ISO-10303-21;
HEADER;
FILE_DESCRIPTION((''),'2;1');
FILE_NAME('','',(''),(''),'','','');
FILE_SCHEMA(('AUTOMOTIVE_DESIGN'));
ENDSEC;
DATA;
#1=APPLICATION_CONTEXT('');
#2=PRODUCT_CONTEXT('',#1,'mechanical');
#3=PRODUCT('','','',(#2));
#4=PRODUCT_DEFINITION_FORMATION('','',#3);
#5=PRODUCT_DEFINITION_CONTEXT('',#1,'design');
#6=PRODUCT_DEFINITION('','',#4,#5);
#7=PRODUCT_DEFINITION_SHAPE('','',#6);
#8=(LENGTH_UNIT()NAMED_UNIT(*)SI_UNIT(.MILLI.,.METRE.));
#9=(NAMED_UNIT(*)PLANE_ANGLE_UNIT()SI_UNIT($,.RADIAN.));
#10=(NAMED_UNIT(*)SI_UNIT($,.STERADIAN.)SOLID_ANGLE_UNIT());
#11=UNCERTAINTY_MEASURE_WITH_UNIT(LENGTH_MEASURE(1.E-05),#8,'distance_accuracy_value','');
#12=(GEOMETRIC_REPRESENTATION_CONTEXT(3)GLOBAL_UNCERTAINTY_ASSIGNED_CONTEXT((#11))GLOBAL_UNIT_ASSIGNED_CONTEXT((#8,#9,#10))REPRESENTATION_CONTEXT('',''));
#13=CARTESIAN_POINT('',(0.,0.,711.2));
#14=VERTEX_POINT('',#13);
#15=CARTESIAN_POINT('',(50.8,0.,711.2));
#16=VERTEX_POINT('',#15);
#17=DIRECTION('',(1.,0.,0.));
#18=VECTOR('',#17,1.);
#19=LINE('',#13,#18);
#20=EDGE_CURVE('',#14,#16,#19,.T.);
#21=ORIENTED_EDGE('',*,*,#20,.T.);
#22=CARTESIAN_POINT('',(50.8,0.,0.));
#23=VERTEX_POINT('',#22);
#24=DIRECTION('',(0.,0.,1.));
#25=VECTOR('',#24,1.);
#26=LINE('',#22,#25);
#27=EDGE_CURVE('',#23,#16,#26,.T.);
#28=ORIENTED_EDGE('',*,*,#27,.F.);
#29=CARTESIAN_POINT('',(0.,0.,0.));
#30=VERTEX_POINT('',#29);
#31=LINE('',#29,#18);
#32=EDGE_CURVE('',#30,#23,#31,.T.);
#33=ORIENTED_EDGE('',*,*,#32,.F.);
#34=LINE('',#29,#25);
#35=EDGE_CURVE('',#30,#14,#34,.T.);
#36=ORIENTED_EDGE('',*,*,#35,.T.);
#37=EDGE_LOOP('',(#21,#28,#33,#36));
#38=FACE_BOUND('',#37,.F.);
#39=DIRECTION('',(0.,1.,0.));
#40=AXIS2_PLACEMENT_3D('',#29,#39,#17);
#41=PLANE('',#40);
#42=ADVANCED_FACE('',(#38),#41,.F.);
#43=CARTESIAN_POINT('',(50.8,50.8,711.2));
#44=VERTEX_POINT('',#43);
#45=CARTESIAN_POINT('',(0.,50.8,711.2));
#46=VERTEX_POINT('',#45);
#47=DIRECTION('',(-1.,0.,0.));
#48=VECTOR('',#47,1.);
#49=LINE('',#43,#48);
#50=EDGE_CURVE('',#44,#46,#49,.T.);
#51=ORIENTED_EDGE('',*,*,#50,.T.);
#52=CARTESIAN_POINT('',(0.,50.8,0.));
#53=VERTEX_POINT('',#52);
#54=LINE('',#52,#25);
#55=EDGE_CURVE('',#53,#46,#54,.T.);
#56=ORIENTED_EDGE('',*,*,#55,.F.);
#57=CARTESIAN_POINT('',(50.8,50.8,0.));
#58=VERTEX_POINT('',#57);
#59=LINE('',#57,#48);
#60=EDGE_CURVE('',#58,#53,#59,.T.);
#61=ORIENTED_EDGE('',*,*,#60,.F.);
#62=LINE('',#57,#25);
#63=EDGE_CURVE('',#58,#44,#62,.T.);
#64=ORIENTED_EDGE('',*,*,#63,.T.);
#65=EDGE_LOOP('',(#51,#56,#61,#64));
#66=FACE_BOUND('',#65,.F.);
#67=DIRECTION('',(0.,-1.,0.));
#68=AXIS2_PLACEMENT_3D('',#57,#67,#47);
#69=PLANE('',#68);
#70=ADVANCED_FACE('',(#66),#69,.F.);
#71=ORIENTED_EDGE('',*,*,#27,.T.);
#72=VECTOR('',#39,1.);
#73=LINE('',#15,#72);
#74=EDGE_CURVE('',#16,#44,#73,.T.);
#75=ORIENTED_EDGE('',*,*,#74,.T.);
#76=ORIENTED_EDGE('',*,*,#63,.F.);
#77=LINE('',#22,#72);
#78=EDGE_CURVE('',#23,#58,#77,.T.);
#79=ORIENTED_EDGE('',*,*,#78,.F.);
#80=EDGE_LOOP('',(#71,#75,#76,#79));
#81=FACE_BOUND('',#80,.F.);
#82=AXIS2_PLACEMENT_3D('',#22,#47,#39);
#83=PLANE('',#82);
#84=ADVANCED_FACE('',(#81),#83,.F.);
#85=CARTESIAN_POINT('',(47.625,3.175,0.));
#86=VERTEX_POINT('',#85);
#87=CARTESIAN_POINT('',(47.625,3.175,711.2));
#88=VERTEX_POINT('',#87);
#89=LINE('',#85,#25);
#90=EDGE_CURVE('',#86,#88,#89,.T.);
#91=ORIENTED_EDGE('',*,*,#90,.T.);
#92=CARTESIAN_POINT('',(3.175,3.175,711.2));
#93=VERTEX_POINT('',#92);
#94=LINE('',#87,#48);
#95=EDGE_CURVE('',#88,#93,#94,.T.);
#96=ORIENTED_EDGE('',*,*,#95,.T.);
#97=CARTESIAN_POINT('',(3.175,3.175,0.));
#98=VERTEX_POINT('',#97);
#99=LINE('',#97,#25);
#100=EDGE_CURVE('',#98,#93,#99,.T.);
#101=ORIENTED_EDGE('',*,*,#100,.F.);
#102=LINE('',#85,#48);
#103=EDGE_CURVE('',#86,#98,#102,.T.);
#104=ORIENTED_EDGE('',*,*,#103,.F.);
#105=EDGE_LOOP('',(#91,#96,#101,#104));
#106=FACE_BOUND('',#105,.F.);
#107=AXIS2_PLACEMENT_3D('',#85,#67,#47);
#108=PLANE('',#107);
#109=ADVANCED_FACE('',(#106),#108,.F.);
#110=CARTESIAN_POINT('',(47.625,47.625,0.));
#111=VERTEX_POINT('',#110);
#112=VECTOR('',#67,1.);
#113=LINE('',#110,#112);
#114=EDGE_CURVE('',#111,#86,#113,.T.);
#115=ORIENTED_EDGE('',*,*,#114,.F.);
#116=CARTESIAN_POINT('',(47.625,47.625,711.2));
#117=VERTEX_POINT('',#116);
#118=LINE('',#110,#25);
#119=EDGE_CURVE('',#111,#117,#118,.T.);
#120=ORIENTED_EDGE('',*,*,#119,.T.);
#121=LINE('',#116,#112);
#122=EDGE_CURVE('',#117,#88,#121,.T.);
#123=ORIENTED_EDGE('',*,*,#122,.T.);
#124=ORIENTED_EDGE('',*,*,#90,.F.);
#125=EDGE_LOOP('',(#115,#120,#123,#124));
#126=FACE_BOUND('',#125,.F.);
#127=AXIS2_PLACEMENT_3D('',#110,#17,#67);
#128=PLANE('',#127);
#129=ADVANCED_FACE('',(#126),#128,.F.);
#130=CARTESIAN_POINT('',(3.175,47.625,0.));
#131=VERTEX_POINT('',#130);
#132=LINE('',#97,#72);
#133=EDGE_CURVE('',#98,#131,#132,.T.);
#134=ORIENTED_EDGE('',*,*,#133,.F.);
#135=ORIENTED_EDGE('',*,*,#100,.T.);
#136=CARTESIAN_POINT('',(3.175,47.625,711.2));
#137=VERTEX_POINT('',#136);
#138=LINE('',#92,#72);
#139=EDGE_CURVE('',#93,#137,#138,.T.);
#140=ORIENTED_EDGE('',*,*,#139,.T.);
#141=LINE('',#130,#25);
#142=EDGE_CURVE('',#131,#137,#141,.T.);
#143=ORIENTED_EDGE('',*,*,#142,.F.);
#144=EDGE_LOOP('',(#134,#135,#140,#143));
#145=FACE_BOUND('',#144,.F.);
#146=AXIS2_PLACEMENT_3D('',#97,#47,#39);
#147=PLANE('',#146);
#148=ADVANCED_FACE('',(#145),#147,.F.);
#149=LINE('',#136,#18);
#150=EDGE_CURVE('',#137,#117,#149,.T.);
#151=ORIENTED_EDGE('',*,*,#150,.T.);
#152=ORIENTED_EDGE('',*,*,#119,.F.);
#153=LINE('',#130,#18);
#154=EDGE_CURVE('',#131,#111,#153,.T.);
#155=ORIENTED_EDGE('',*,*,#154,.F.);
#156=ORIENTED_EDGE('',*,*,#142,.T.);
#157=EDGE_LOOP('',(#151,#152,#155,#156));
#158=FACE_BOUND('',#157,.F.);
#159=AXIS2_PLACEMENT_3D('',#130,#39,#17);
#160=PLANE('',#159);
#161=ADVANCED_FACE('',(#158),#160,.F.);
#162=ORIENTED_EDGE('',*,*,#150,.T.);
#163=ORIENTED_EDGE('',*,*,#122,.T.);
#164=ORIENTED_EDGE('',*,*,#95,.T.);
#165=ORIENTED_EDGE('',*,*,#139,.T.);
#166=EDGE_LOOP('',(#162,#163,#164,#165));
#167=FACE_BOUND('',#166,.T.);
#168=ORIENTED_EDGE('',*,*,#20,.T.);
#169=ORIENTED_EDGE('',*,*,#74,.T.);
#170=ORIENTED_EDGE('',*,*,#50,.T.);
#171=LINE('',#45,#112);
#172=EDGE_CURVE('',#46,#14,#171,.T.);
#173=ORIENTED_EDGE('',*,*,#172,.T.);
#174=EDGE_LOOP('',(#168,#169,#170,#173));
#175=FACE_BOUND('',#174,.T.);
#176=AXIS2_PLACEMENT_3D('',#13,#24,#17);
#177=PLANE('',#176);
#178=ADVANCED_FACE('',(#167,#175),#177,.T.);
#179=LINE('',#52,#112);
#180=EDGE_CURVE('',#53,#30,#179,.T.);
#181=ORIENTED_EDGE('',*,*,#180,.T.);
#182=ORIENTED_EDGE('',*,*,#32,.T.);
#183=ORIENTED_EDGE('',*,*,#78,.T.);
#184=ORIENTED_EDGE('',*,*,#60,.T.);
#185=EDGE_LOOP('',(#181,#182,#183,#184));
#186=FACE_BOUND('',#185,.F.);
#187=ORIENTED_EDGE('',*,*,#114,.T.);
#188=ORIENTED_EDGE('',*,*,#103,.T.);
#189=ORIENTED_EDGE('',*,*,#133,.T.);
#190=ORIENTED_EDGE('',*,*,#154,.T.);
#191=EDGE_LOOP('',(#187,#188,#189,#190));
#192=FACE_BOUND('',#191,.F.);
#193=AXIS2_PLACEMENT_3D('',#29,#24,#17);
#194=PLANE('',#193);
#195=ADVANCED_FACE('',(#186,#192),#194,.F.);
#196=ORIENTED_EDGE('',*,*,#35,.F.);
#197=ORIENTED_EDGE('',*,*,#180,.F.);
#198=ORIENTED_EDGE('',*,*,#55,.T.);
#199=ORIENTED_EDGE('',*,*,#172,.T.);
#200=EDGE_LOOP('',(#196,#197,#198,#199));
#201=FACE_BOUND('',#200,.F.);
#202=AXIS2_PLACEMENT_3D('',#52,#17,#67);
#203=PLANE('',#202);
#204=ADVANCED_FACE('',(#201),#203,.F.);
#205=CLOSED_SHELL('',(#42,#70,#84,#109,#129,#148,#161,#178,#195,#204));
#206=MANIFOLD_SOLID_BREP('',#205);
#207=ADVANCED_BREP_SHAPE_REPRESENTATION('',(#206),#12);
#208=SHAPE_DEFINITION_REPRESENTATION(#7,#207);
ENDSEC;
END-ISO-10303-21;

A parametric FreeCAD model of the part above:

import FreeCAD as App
import Part
import Sketcher
Q = App.Units.Quantity

doc = App.newDocument("Part")
params = doc.addObject("Spreadsheet::Sheet", "Params")
for row, (alias, value) in enumerate([
    ("sketch1_width", "2 in"),
    ("pad1_length", "28 in"),
], start=1):
    params.set(f"A{row}", alias)
    params.set(f"B{row}", "=" + value)
    params.setAlias(f"B{row}", alias)

body = doc.addObject("PartDesign::Body", "Body")

sketch1 = doc.addObject("Sketcher::SketchObject", "Sketch")
body.addObject(sketch1)
sketch1.AttachmentSupport = (doc.XY_Plane, [""])
sketch1.MapMode = "FlatFace"
sketch1.addGeometry([
    Part.LineSegment(App.Vector(0, 50.8, 0), App.Vector(0, 0, 0)),
    Part.LineSegment(App.Vector(0, 0, 0), App.Vector(50.8, 0, 0)),
    Part.LineSegment(App.Vector(50.8, 0, 0), App.Vector(50.8, 50.8, 0)),
    Part.LineSegment(App.Vector(50.8, 50.8, 0), App.Vector(0, 50.8, 0)),
    Part.LineSegment(App.Vector(3.175, 3.175, 0), App.Vector(3.175, 47.625, 0)),
    Part.LineSegment(App.Vector(3.175, 47.625, 0), App.Vector(47.625, 47.625, 0)),
    Part.LineSegment(App.Vector(47.625, 47.625, 0), App.Vector(47.625, 3.175, 0)),
    Part.LineSegment(App.Vector(47.625, 3.175, 0), App.Vector(3.175, 3.175, 0)),
], False)
sketch1.addConstraint([
    Sketcher.Constraint("Coincident", 0, 2, 1, 1),
    Sketcher.Constraint("Coincident", 1, 2, 2, 1),
    Sketcher.Constraint("Coincident", 2, 2, 3, 1),
    Sketcher.Constraint("Coincident", 3, 2, 0, 1),
    Sketcher.Constraint("Coincident", 4, 2, 5, 1),
    Sketcher.Constraint("Coincident", 5, 2, 6, 1),
    Sketcher.Constraint("Coincident", 6, 2, 7, 1),
    Sketcher.Constraint("Coincident", 7, 2, 4, 1),
    Sketcher.Constraint("Vertical", 0),
    Sketcher.Constraint("Horizontal", 1),
    Sketcher.Constraint("Vertical", 2),
    Sketcher.Constraint("Horizontal", 3),
    Sketcher.Constraint("Vertical", 4),
    Sketcher.Constraint("Horizontal", 5),
    Sketcher.Constraint("Vertical", 6),
    Sketcher.Constraint("Horizontal", 7),
    Sketcher.Constraint("Coincident", 0, 2, -1, 1),
    Sketcher.Constraint("Equal", 3, 0),
    Sketcher.Constraint("Equal", 7, 4),
    Sketcher.Constraint("DistanceX", 1, 1, 1, 2, Q("2 in")),
    Sketcher.Constraint("DistanceX", -1, 1, 4, 2, Q("0.125 in")),
    Sketcher.Constraint("DistanceY", -1, 1, 6, 2, Q("0.125 in")),
    Sketcher.Constraint("DistanceY", 4, 2, 3, 2, Q("0.125 in")),
])
sketch1.setExpression("Constraints[19]", "Params.sketch1_width")
pad1 = doc.addObject("PartDesign::Pad", "Pad")
body.addObject(pad1)
pad1.Profile = sketch1
pad1.setExpression("Length", "Params.pad1_length")

doc.recompute()
